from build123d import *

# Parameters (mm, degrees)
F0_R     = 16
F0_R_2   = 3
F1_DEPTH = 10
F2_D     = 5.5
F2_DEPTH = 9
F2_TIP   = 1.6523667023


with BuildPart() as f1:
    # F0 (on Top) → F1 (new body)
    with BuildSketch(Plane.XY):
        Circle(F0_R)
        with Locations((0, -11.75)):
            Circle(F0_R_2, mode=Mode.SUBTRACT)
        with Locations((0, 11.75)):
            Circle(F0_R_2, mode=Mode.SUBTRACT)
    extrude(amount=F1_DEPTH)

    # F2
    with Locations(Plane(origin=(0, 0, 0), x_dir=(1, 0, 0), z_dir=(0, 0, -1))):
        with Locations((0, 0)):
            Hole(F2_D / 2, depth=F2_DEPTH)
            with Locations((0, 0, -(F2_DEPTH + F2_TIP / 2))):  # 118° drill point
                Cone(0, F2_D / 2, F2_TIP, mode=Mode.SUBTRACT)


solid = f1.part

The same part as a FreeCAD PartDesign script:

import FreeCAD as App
import Part
import Sketcher

doc = App.newDocument("Part")
params = doc.addObject("Spreadsheet::Sheet", "Params")
for row, (alias, value) in enumerate([
    ("sketch1_diameter", "32 mm"),
    ("sketch1_diameter2", "6 mm"),
    ("pad1_length", "10 mm"),
    ("sketch2_diameter", "5.5 mm"),
    ("hole_diameter", "5.5 mm"),
    ("hole_depth", "9 mm"),
], start=1):
    params.set(f"A{row}", alias)
    params.set(f"B{row}", "=" + value)
    params.setAlias(f"B{row}", alias)

body = doc.addObject("PartDesign::Body", "Body")

# Sketch on XY plane
sketch1 = body.newObject("Sketcher::SketchObject", "Sketch")
sketch1.AttachmentSupport = (doc.getObject("XY_Plane"), [""])
sketch1.MapMode = "FlatFace"
sketch1.addGeometry(Part.Circle(App.Vector(0, 0, 0), App.Vector(0, 0, 1), 16), False)
sketch1.addGeometry(Part.Circle(App.Vector(0, -11.75, 0), App.Vector(0, 0, 1), 3), False)
sketch1.addGeometry(Part.Circle(App.Vector(0, 11.75, 0), App.Vector(0, 0, 1), 3), False)
sketch1.addConstraint(Sketcher.Constraint("Coincident", 0, 3, -1, 1))
sketch1.addConstraint(Sketcher.Constraint("Equal", 1, 2))
sketch1.addConstraint(Sketcher.Constraint("Symmetric", 1, 3, 2, 3, -1, 1))
sketch1.addConstraint(Sketcher.Constraint("PointOnObject", 1, 3, -2))
sketch1.addConstraint(Sketcher.Constraint("Diameter", 0, 32.0))
sketch1.addConstraint(Sketcher.Constraint("Diameter", 1, 6.0))
sketch1.addConstraint(Sketcher.Constraint("DistanceY", 1, 3, 2, 3, 23.5))
sketch1.setExpression("Constraints[4]", "Params.sketch1_diameter")
sketch1.setExpression("Constraints[5]", "Params.sketch1_diameter2")
pad1 = body.newObject("PartDesign::Pad", "Pad")
pad1.Profile = sketch1
pad1.setExpression("Length", "Params.pad1_length")

# Sketch on XY plane
sketch2 = body.newObject("Sketcher::SketchObject", "Sketch001")
sketch2.AttachmentSupport = (doc.getObject("XY_Plane"), [""])
sketch2.MapMode = "FlatFace"
sketch2.addGeometry(Part.Circle(App.Vector(0, 0, 0), App.Vector(0, 0, 1), 2.75), False)
sketch2.addConstraint(Sketcher.Constraint("Coincident", 0, 3, -1, 1))
sketch2.addConstraint(Sketcher.Constraint("Diameter", 0, 5.5))
sketch2.setExpression("Constraints[1]", "Params.sketch2_diameter")
doc.recompute()
hole = body.newObject("PartDesign::Hole", "Hole")
hole.Profile = sketch2
hole.ThreadType = "None"
hole.setExpression("Diameter", "Params.hole_diameter")
hole.DepthType = "Dimension"
hole.setExpression("Depth", "Params.hole_depth")
hole.DrillPoint = "Angled"
hole.DrillPointAngle = 118
hole.Reversed = True

doc.recompute()
